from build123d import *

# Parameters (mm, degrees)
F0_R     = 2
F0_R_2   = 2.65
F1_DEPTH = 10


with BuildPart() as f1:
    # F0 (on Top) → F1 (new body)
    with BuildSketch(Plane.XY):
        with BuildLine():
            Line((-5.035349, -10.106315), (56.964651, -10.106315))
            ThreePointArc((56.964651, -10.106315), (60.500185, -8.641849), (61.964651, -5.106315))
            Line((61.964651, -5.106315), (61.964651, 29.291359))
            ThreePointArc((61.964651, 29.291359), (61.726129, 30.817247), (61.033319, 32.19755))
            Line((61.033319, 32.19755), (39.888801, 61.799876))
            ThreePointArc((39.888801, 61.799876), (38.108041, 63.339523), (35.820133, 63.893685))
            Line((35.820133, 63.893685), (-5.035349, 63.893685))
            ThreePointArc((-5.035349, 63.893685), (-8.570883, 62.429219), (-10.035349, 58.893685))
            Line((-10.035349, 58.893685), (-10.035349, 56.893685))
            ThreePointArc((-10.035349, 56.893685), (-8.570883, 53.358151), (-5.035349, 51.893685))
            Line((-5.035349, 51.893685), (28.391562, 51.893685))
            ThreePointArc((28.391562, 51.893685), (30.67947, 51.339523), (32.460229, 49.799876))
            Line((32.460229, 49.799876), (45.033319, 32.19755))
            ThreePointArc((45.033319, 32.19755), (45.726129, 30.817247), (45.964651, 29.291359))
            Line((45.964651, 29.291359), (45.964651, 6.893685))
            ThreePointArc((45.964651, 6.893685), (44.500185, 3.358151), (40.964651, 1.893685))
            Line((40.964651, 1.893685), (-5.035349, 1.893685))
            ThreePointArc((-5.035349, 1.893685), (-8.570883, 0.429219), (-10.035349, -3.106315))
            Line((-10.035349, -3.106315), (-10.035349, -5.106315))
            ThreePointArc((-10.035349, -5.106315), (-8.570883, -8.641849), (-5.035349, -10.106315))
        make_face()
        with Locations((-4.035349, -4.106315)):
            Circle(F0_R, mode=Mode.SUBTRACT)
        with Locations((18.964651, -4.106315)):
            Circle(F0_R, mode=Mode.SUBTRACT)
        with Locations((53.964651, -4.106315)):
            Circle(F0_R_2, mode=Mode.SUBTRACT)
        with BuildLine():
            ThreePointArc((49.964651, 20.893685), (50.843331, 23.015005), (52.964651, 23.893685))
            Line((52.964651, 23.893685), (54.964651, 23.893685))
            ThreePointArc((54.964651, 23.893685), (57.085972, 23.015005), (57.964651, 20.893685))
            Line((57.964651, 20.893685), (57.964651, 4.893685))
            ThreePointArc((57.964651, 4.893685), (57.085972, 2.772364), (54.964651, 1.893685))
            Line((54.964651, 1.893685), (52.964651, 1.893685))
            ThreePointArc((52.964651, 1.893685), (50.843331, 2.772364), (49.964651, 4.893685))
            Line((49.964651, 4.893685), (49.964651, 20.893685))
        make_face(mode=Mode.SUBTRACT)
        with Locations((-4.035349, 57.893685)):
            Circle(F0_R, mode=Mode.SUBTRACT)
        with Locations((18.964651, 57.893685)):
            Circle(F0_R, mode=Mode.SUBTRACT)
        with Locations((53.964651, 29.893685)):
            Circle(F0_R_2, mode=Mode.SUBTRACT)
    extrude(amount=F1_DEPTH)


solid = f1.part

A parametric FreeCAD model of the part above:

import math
import FreeCAD as App
import Part
import Sketcher
Q = App.Units.Quantity

doc = App.newDocument("Part")
params = doc.addObject("Spreadsheet::Sheet", "Params")
for row, (alias, value) in enumerate([
    ("sketch1_diameter", "4 mm"),
    ("sketch1_radius", "5 mm"),
    ("sketch1_radius2", "3.000001 mm"),
    ("sketch1_diameter2", "5.3 mm"),
    ("sketch1_width", "62 mm"),
    ("pad1_length", "10 mm"),
], start=1):
    params.set(f"A{row}", alias)
    params.set(f"B{row}", "=" + value)
    params.setAlias(f"B{row}", alias)

body = doc.addObject("PartDesign::Body", "Body")

sketch1 = body.newObject("Sketcher::SketchObject", "Sketch")
sketch1.AttachmentSupport = (doc.getObject("XY_Plane"), [""])
sketch1.MapMode = "FlatFace"
sketch1.addGeometry([
    Part.LineSegment(App.Vector(-5, -10.1, 0), App.Vector(57, -10.1, 0)),
    Part.ArcOfCircle(Part.Circle(App.Vector(57, -5.1, 0), App.Vector(0, 0, 1), 5), math.radians(-90), math.radians(0)),
    Part.LineSegment(App.Vector(62, -5.1, 0), App.Vector(62, 29.3, 0)),
    Part.ArcOfCircle(Part.Circle(App.Vector(57, 29.3, 0), App.Vector(0, 0, 1), 5), math.radians(0), math.radians(36)),
    Part.LineSegment(App.Vector(61, 32.2, 0), App.Vector(39.9, 61.8, 0)),
    Part.ArcOfCircle(Part.Circle(App.Vector(35.8, 58.9, 0), App.Vector(0, 0, 1), 5), math.radians(36), math.radians(90)),
    Part.LineSegment(App.Vector(35.8, 63.9, 0), App.Vector(-5, 63.9, 0)),
    Part.ArcOfCircle(Part.Circle(App.Vector(-5, 58.9, 0), App.Vector(0, 0, 1), 5), math.radians(90), math.radians(180)),
    Part.LineSegment(App.Vector(-10, 58.9, 0), App.Vector(-10, 56.9, 0)),
    Part.ArcOfCircle(Part.Circle(App.Vector(-5, 56.9, 0), App.Vector(0, 0, 1), 5), math.radians(180), math.radians(270)),
    Part.LineSegment(App.Vector(-5, 51.9, 0), App.Vector(28.4, 51.9, 0)),
    Part.ArcOfCircle(Part.Circle(App.Vector(28.4, 46.9, 0), App.Vector(0, 0, 1), 5), math.radians(36), math.radians(90)),
    Part.LineSegment(App.Vector(32.5, 49.8, 0), App.Vector(45, 32.2, 0)),
    Part.ArcOfCircle(Part.Circle(App.Vector(41, 29.3, 0), App.Vector(0, 0, 1), 5), math.radians(0), math.radians(36)),
    Part.LineSegment(App.Vector(46, 29.3, 0), App.Vector(46, 6.9, 0)),
    Part.ArcOfCircle(Part.Circle(App.Vector(41, 6.9, 0), App.Vector(0, 0, 1), 5), math.radians(-90), math.radians(0)),
    Part.LineSegment(App.Vector(41, 1.9, 0), App.Vector(-5, 1.9, 0)),
    Part.ArcOfCircle(Part.Circle(App.Vector(-5, -3.1, 0), App.Vector(0, 0, 1), 5), math.radians(90), math.radians(180)),
    Part.LineSegment(App.Vector(-10, -3.1, 0), App.Vector(-10, -5.1, 0)),
    Part.ArcOfCircle(Part.Circle(App.Vector(-5, -5.1, 0), App.Vector(0, 0, 1), 5), math.radians(180), math.radians(270)),
    Part.Circle(App.Vector(-4, -4.1, 0), App.Vector(0, 0, 1), 2),
    Part.Circle(App.Vector(19, -4.1, 0), App.Vector(0, 0, 1), 2),
    Part.Circle(App.Vector(54, -4.1, 0), App.Vector(0, 0, 1), 2.6),
    Part.LineSegment(App.Vector(50, 4.9, 0), App.Vector(50, 20.9, 0)),
    Part.ArcOfCircle(Part.Circle(App.Vector(53, 20.9, 0), App.Vector(0, 0, 1), 3), math.radians(90), math.radians(180)),
    Part.LineSegment(App.Vector(53, 23.9, 0), App.Vector(55, 23.9, 0)),
    Part.ArcOfCircle(Part.Circle(App.Vector(55, 20.9, 0), App.Vector(0, 0, 1), 3), math.radians(0), math.radians(90)),
    Part.LineSegment(App.Vector(58, 20.9, 0), App.Vector(58, 4.9, 0)),
    Part.ArcOfCircle(Part.Circle(App.Vector(55, 4.9, 0), App.Vector(0, 0, 1), 3), math.radians(-90), math.radians(0)),
    Part.LineSegment(App.Vector(55, 1.9, 0), App.Vector(53, 1.9, 0)),
    Part.ArcOfCircle(Part.Circle(App.Vector(53, 4.9, 0), App.Vector(0, 0, 1), 3), math.radians(180), math.radians(270)),
    Part.Circle(App.Vector(-4, 57.9, 0), App.Vector(0, 0, 1), 2),
    Part.Circle(App.Vector(19, 57.9, 0), App.Vector(0, 0, 1), 2),
    Part.Circle(App.Vector(54, 29.9, 0), App.Vector(0, 0, 1), 2.6),
], False)
sketch1.addConstraint([
    Sketcher.Constraint("Tangent", 0, 2, 1, 1),
    Sketcher.Constraint("Tangent", 1, 2, 2, 1),
    Sketcher.Constraint("Tangent", 2, 2, 3, 1),
    Sketcher.Constraint("Tangent", 3, 2, 4, 1),
    Sketcher.Constraint("Tangent", 4, 2, 5, 1),
    Sketcher.Constraint("Tangent", 5, 2, 6, 1),
    Sketcher.Constraint("Tangent", 6, 2, 7, 1),
    Sketcher.Constraint("Tangent", 7, 2, 8, 1),
    Sketcher.Constraint("Tangent", 8, 2, 9, 1),
    Sketcher.Constraint("Tangent", 9, 2, 10, 1),
    Sketcher.Constraint("Tangent", 10, 2, 11, 2),
    Sketcher.Constraint("Tangent", 11, 1, 12, 1),
    Sketcher.Constraint("Tangent", 12, 2, 13, 2),
    Sketcher.Constraint("Tangent", 13, 1, 14, 1),
    Sketcher.Constraint("Tangent", 14, 2, 15, 2),
    Sketcher.Constraint("Tangent", 15, 1, 16, 1),
    Sketcher.Constraint("Tangent", 16, 2, 17, 1),
    Sketcher.Constraint("Tangent", 17, 2, 18, 1),
    Sketcher.Constraint("Tangent", 18, 2, 19, 1),
    Sketcher.Constraint("Tangent", 19, 2, 0, 1),
    Sketcher.Constraint("Tangent", 23, 2, 24, 2),
    Sketcher.Constraint("Tangent", 24, 1, 25, 1),
    Sketcher.Constraint("Tangent", 25, 2, 26, 2),
    Sketcher.Constraint("Tangent", 26, 1, 27, 1),
    Sketcher.Constraint("Tangent", 27, 2, 28, 2),
    Sketcher.Constraint("Tangent", 28, 1, 29, 1),
    Sketcher.Constraint("Tangent", 29, 2, 30, 2),
    Sketcher.Constraint("Tangent", 30, 1, 23, 1),
    Sketcher.Constraint("Horizontal", 0),
    Sketcher.Constraint("Vertical", 2),
    Sketcher.Constraint("Horizontal", 6),
    Sketcher.Constraint("Vertical", 8),
    Sketcher.Constraint("Horizontal", 10),
    Sketcher.Constraint("Vertical", 14),
    Sketcher.Constraint("Horizontal", 16),
    Sketcher.Constraint("Vertical", 18),
    Sketcher.Constraint("Vertical", 23),
    Sketcher.Constraint("Horizontal", 25),
    Sketcher.Constraint("Vertical", 27),
    Sketcher.Constraint("Horizontal", 29),
    Sketcher.Constraint("Equal", 1, 7),
    Sketcher.Constraint("Equal", 7, 9),
    Sketcher.Constraint("Equal", 9, 11),
    Sketcher.Constraint("Equal", 3, 13),
    Sketcher.Constraint("Equal", 11, 15),
    Sketcher.Constraint("Equal", 15, 17),
    Sketcher.Constraint("Equal", 17, 19),
    Sketcher.Constraint("Equal", 20, 21),
    Sketcher.Constraint("Equal", 24, 26),
    Sketcher.Constraint("Equal", 26, 28),
    Sketcher.Constraint("Equal", 28, 30),
    Sketcher.Constraint("Equal", 21, 31),
    Sketcher.Constraint("Equal", 31, 32),
    Sketcher.Constraint("Equal", 22, 33),
    Sketcher.Constraint("Parallel", 4, 12),
    Sketcher.Constraint("Horizontal", 3, 3, 13, 3),
    Sketcher.Constraint("Horizontal", 20, 3, 21, 3),
    Sketcher.Constraint("Horizontal", 21, 3, 22, 3),
    Sketcher.Constraint("Horizontal", 31, 3, 32, 3),
    Sketcher.Constraint("Horizontal", 16, 2, 28, 1),
    Sketcher.Constraint("Vertical", 9, 3, 17, 3),
    Sketcher.Constraint("Vertical", 20, 3, 31, 3),
    Sketcher.Constraint("Vertical", 21, 3, 32, 3),
    Sketcher.Constraint("Vertical", 22, 3, 33, 3),
    Sketcher.Constraint("Equal", 29, 8),
    Sketcher.Constraint("Equal", 8, 18),
    Sketcher.Constraint("Diameter", 20, Q("4 mm")),
    Sketcher.Constraint("Radius", 1, Q("5 mm")),
    Sketcher.Constraint("Radius", 24, Q("3.000001 mm")),
    Sketcher.Constraint("Diameter", 22, Q("5.3 mm")),
    Sketcher.Constraint("DistanceX", 0, 1, 0, 2, Q("62 mm")),
    Sketcher.Constraint("DistanceX", 16, 2, 16, 1, Q("46 mm")),
    Sketcher.Constraint("DistanceX", 25, 1, 25, 2, Q("2 mm")),
    Sketcher.Constraint("DistanceY", 23, 1, 23, 2, Q("16 mm")),
    Sketcher.Constraint("DistanceY", 1, 3, 7, 3, Q("64.000001 mm")),
    Sketcher.Constraint("DistanceX", 19, 3, 20, 3, Q("1 mm")),
    Sketcher.Constraint("DistanceY", 19, 3, 20, 3, Q("1 mm")),
    Sketcher.Constraint("DistanceX", 20, 3, 21, 3, Q("23 mm")),
    Sketcher.Constraint("DistanceX", 22, 3, 1, 3, Q("3 mm")),
    Sketcher.Constraint("DistanceX", 15, 3, 24, 3, Q("12.000001 mm")),
    Sketcher.Constraint("DistanceY", 9, 3, 31, 3, Q("1 mm")),
    Sketcher.Constraint("DistanceY", 26, 3, 33, 3, Q("8.999999 mm")),
    Sketcher.Constraint("DistanceY", 11, 1, 4, 2, Q("12 mm")),
    Sketcher.Constraint("Radius", 3, Q("4.999992 mm")),
    Sketcher.Constraint("DistanceX", 6, 2, 6, 1, Q("40.855482 mm")),
    Sketcher.Constraint("DistanceX", 10, 1, 10, 2, Q("33.426911 mm")),
    Sketcher.Constraint("DistanceX", -1, 1, 4, 2, Q("39.888801 mm")),
    Sketcher.Constraint("DistanceY", -1, 1, 5, 3, Q("58.893681 mm")),
])
sketch1.setExpression("Constraints[66]", "Params.sketch1_diameter")
sketch1.setExpression("Constraints[67]", "Params.sketch1_radius")
sketch1.setExpression("Constraints[68]", "Params.sketch1_radius2")
sketch1.setExpression("Constraints[69]", "Params.sketch1_diameter2")
sketch1.setExpression("Constraints[70]", "Params.sketch1_width")
pad1 = body.newObject("PartDesign::Pad", "Pad")
pad1.Profile = sketch1
pad1.setExpression("Length", "Params.pad1_length")

doc.recompute()
